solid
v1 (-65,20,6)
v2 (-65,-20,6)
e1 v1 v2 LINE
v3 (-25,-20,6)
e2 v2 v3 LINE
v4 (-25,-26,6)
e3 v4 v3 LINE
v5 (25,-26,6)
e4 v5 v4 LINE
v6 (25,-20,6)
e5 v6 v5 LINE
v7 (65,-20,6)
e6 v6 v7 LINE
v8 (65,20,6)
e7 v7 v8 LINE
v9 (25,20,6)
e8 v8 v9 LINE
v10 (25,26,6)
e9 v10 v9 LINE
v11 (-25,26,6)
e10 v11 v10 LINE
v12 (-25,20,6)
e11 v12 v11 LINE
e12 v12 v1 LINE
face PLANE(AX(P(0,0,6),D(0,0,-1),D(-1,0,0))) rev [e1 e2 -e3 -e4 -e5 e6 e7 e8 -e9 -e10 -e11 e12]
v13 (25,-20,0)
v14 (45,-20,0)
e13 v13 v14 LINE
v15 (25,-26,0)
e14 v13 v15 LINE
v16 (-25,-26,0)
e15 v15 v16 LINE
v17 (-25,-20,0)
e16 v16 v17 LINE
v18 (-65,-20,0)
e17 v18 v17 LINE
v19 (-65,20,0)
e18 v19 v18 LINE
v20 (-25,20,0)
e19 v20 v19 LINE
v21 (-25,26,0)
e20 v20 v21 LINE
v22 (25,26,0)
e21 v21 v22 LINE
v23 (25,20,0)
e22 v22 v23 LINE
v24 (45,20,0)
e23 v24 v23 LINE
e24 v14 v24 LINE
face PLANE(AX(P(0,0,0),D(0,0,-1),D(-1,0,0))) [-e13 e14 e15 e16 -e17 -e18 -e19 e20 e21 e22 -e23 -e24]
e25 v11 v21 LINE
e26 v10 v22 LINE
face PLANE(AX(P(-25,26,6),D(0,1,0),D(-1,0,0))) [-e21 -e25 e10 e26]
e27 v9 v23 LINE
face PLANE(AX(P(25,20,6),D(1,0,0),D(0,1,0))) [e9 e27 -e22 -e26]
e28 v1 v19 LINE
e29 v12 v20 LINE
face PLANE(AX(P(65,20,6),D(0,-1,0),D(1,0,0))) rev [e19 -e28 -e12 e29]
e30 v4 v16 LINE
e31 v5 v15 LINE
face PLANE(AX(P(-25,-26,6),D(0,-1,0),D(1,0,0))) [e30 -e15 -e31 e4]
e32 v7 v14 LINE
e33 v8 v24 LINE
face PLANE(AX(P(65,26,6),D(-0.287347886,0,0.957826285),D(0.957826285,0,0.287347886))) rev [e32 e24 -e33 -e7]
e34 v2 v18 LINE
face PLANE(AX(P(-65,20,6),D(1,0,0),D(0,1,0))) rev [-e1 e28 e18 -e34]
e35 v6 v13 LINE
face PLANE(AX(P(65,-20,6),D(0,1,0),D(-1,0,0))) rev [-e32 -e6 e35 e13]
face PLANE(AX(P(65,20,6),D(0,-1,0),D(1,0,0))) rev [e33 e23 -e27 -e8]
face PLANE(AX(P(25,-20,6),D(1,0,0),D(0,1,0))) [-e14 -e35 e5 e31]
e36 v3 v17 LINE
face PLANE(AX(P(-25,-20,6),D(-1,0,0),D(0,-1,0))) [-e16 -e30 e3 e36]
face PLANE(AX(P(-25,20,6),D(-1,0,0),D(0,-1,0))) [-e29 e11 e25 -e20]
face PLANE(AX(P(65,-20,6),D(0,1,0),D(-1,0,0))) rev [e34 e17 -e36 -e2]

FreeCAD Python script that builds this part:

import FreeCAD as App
import Part
import Sketcher

V = App.Vector
Q = App.Units.Quantity

doc = App.newDocument("Part")
params = doc.addObject("Spreadsheet::Sheet", "Params")
for row, (alias, value) in enumerate([
    ("sketch1_width", "130 mm"),
    ("sketch1_height", "40 mm"),
    ("pad1_length", "6 mm"),
    ("sketch2_width", "50 mm"),
    ("sketch2_height", "6 mm"),
    ("pad2_length", "6 mm"),
    ("sketch3_width", "20 mm"),
    ("sketch3_height", "6 mm"),
], start=1):
    params.set(f"A{row}", alias)
    params.set(f"B{row}", "=" + value)
    params.setAlias(f"B{row}", alias)

body = doc.addObject("PartDesign::Body", "Body")

# Sketch on XY plane
sketch1 = doc.addObject("Sketcher::SketchObject", "Sketch")
body.addObject(sketch1)
sketch1.AttachmentSupport = (doc.XY_Plane, [""])
sketch1.MapMode = "FlatFace"
sketch1.addGeometry([
    Part.LineSegment(V(-65, 20, 0), V(-65, -20, 0)),
    Part.LineSegment(V(-65, -20, 0), V(65, -20, 0)),
    Part.LineSegment(V(65, -20, 0), V(65, 20, 0)),
    Part.LineSegment(V(65, 20, 0), V(-65, 20, 0)),
], False)
sketch1.addConstraint([
    Sketcher.Constraint("Coincident", 0, 2, 1, 1),
    Sketcher.Constraint("Coincident", 1, 2, 2, 1),
    Sketcher.Constraint("Coincident", 2, 2, 3, 1),
    Sketcher.Constraint("Coincident", 3, 2, 0, 1),
    Sketcher.Constraint("Vertical", 0),
    Sketcher.Constraint("Horizontal", 1),
    Sketcher.Constraint("Vertical", 2),
    Sketcher.Constraint("Horizontal", 3),
    Sketcher.Constraint("Symmetric", 0, 2, 2, 2, -1, 1),
    Sketcher.Constraint("DistanceX", 1, 1, 1, 2, Q("130 mm")),
    Sketcher.Constraint("DistanceY", 0, 2, 0, 1, Q("40 mm")),
])
sketch1.setExpression("Constraints[9]", "Params.sketch1_width")
sketch1.setExpression("Constraints[10]", "Params.sketch1_height")
pad1 = doc.addObject("PartDesign::Pad", "Pad")
body.addObject(pad1)
pad1.Profile = sketch1
pad1.setExpression("Length", "Params.pad1_length")

# Sketch on XY plane
sketch2 = doc.addObject("Sketcher::SketchObject", "Sketch001")
body.addObject(sketch2)
sketch2.AttachmentSupport = (doc.XY_Plane, [""])
sketch2.MapMode = "FlatFace"
sketch2.addGeometry([
    Part.LineSegment(V(25, 26, 0), V(25, 20, 0)),  # 0
    Part.LineSegment(V(25, 20, 0), V(-25, 20, 0)),  # 1
    Part.LineSegment(V(-25, 20, 0), V(-25, 26, 0)),  # 2
    Part.LineSegment(V(-25, 26, 0), V(25, 26, 0)),  # 3
    Part.LineSegment(V(25, -20, 0), V(25, -26, 0)),  # 4
    Part.LineSegment(V(25, -26, 0), V(-25, -26, 0)),  # 5
    Part.LineSegment(V(-25, -26, 0), V(-25, -20, 0)),  # 6
    Part.LineSegment(V(-25, -20, 0), V(25, -20, 0)),  # 7
], False)
sketch2.addConstraint([
    Sketcher.Constraint("Coincident", 0, 2, 1, 1),
    Sketcher.Constraint("Coincident", 1, 2, 2, 1),
    Sketcher.Constraint("Coincident", 2, 2, 3, 1),
    Sketcher.Constraint("Coincident", 3, 2, 0, 1),
    Sketcher.Constraint("Coincident", 4, 2, 5, 1),
    Sketcher.Constraint("Coincident", 5, 2, 6, 1),
    Sketcher.Constraint("Coincident", 6, 2, 7, 1),
    Sketcher.Constraint("Coincident", 7, 2, 4, 1),
    Sketcher.Constraint("Vertical", 0),
    Sketcher.Constraint("Horizontal", 1),
    Sketcher.Constraint("Vertical", 2),
    Sketcher.Constraint("Horizontal", 3),
    Sketcher.Constraint("Vertical", 4),
    Sketcher.Constraint("Horizontal", 5),
    Sketcher.Constraint("Vertical", 6),
    Sketcher.Constraint("Horizontal", 7),
    Sketcher.Constraint("Symmetric", 2, 2, 4, 2, -1, 1),
    Sketcher.Constraint("Symmetric", 0, 2, 6, 2, -1, 1),
    Sketcher.Constraint("Vertical", 3, 2, 4, 2),
    Sketcher.Constraint("DistanceX", 1, 2, 1, 1, Q("50 mm")),
    Sketcher.Constraint("DistanceY", 0, 2, 0, 1, Q("6 mm")),
    Sketcher.Constraint("DistanceY", -1, 1, 0, 2, Q("20 mm")),
])
sketch2.setExpression("Constraints[19]", "Params.sketch2_width")
sketch2.setExpression("Constraints[20]", "Params.sketch2_height")
pad2 = doc.addObject("PartDesign::Pad", "Pad001")
body.addObject(pad2)
pad2.Profile = sketch2
pad2.setExpression("Length", "Params.pad2_length")

# Sketch on XZ plane
sketch3 = doc.addObject("Sketcher::SketchObject", "Sketch002")
body.addObject(sketch3)
sketch3.AttachmentSupport = (doc.XZ_Plane, [""])
sketch3.MapMode = "FlatFace"
sketch3.AttachmentOffset = App.Placement(V(0, 0, 20), App.Rotation())
sketch3.addGeometry([
    Part.LineSegment(V(65, 6, 0), V(45, 0, 0)),
    Part.LineSegment(V(45, 0, 0), V(65, 0, 0)),
    Part.LineSegment(V(65, 0, 0), V(65, 6, 0)),
], False)
sketch3.addConstraint([
    Sketcher.Constraint("Coincident", 0, 2, 1, 1),
    Sketcher.Constraint("Coincident", 1, 2, 2, 1),
    Sketcher.Constraint("Coincident", 2, 2, 0, 1),
    Sketcher.Constraint("Horizontal", 1),
    Sketcher.Constraint("Vertical", 2),
    Sketcher.Constraint("PointOnObject", 0, 2, -1),
    Sketcher.Constraint("DistanceX", 1, 1, 1, 2, Q("20 mm")),
    Sketcher.Constraint("DistanceY", 2, 1, 2, 2, Q("6 mm")),
    Sketcher.Constraint("DistanceX", -1, 1, 0, 2, Q("45 mm")),
])
sketch3.setExpression("Constraints[6]", "Params.sketch3_width")
sketch3.setExpression("Constraints[7]", "Params.sketch3_height")
pocket1 = doc.addObject("PartDesign::Pocket", "Pocket")
body.addObject(pocket1)
pocket1.Profile = sketch3
pocket1.Type = "ThroughAll"

doc.recompute()
